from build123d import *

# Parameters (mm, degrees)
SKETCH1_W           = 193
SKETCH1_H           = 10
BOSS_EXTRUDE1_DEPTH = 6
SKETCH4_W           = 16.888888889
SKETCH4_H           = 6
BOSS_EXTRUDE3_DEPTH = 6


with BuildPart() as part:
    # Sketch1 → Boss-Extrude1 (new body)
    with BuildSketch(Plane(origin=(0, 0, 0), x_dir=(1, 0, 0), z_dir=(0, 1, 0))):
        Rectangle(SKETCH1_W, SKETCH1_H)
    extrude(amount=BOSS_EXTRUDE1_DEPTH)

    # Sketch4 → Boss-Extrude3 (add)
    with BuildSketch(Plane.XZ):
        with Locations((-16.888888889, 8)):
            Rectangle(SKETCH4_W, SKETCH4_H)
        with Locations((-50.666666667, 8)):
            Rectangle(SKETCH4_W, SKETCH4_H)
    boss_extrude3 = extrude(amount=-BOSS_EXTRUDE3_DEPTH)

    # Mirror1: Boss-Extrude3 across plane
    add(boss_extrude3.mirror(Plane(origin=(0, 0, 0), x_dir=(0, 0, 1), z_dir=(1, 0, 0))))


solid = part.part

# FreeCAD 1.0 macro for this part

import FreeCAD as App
import Part
import Sketcher

V = App.Vector

doc = App.newDocument("Part")
body = doc.addObject("PartDesign::Body", "Body")

# Sketch on XZ plane
sketch1 = doc.addObject("Sketcher::SketchObject", "Sketch")
body.addObject(sketch1)
sketch1.AttachmentSupport = (doc.XZ_Plane, [""])
sketch1.MapMode = "FlatFace"
sketch1.addGeometry([
    Part.LineSegment(V(-96.5, -5, 0), V(-96.5, 5, 0)),
    Part.LineSegment(V(-96.5, 5, 0), V(96.5, 5, 0)),
    Part.LineSegment(V(96.5, 5, 0), V(96.5, -5, 0)),
    Part.LineSegment(V(96.5, -5, 0), V(-96.5, -5, 0)),
], False)
sketch1.addConstraint([
    Sketcher.Constraint("Coincident", 0, 2, 1, 1),
    Sketcher.Constraint("Coincident", 1, 2, 2, 1),
    Sketcher.Constraint("Coincident", 2, 2, 3, 1),
    Sketcher.Constraint("Coincident", 3, 2, 0, 1),
    Sketcher.Constraint("Vertical", 0),
    Sketcher.Constraint("Horizontal", 1),
    Sketcher.Constraint("Vertical", 2),
    Sketcher.Constraint("Horizontal", 3),
    Sketcher.Constraint("Symmetric", 0, 2, 2, 2, -1, 1),
    Sketcher.Constraint("DistanceX", 1, 1, 1, 2, 193.0),
    Sketcher.Constraint("DistanceY", 0, 1, 0, 2, 10.0),
])
pad1 = doc.addObject("PartDesign::Pad", "Pad")
body.addObject(pad1)
pad1.Profile = sketch1
pad1.Length = 6
pad1.Reversed = True

# Sketch on XZ plane
sketch2 = doc.addObject("Sketcher::SketchObject", "Sketch001")
body.addObject(sketch2)
sketch2.AttachmentSupport = (doc.XZ_Plane, [""])
sketch2.MapMode = "FlatFace"
sketch2.addGeometry([
    Part.LineSegment(V(-25.333333, 11, 0), V(-25.333333, 5, 0)),  # 0
    Part.LineSegment(V(-25.333333, 5, 0), V(-8.444444, 5, 0)),  # 1
    Part.LineSegment(V(-8.444444, 5, 0), V(-8.444444, 11, 0)),  # 2
    Part.LineSegment(V(-8.444444, 11, 0), V(-25.333333, 11, 0)),  # 3
    Part.LineSegment(V(-59.111111, 11, 0), V(-59.111111, 5, 0)),  # 4
    Part.LineSegment(V(-59.111111, 5, 0), V(-42.222222, 5, 0)),  # 5
    Part.LineSegment(V(-42.222222, 5, 0), V(-42.222222, 11, 0)),  # 6
    Part.LineSegment(V(-42.222222, 11, 0), V(-59.111111, 11, 0)),  # 7
], False)
sketch2.addConstraint([
    Sketcher.Constraint("Coincident", 0, 2, 1, 1),
    Sketcher.Constraint("Coincident", 1, 2, 2, 1),
    Sketcher.Constraint("Coincident", 2, 2, 3, 1),
    Sketcher.Constraint("Coincident", 3, 2, 0, 1),
    Sketcher.Constraint("Coincident", 4, 2, 5, 1),
    Sketcher.Constraint("Coincident", 5, 2, 6, 1),
    Sketcher.Constraint("Coincident", 6, 2, 7, 1),
    Sketcher.Constraint("Coincident", 7, 2, 4, 1),
    Sketcher.Constraint("Vertical", 0),
    Sketcher.Constraint("Horizontal", 1),
    Sketcher.Constraint("Vertical", 2),
    Sketcher.Constraint("Horizontal", 3),
    Sketcher.Constraint("Vertical", 4),
    Sketcher.Constraint("Horizontal", 5),
    Sketcher.Constraint("Vertical", 6),
    Sketcher.Constraint("Horizontal", 7),
    Sketcher.Constraint("Horizontal", 1, 2, 4, 2),
    Sketcher.Constraint("Horizontal", 3, 2, 6, 2),
    Sketcher.Constraint("Equal", 3, 5),
    Sketcher.Constraint("DistanceY", 0, 2, 0, 1, 6.0),
    Sketcher.Constraint("DistanceY", -1, 1, 0, 2, 5.0),
    Sketcher.Constraint("DistanceX", 1, 1, 1, 2, 16.888889),
    Sketcher.Constraint("DistanceX", 4, 2, -1, 1, 59.111111),
    Sketcher.Constraint("DistanceX", 5, 2, 0, 2, 16.888889),
])
pad2 = doc.addObject("PartDesign::Pad", "Pad001")
body.addObject(pad2)
pad2.Profile = sketch2
pad2.Length = 6
pad2.Reversed = True
doc.recompute()

mirrored = doc.addObject("PartDesign::Mirrored", "Mirrored")
body.addObject(mirrored)
mirrored.Originals = [pad2]
mirrored.MirrorPlane = (doc.YZ_Plane, [""])
body.Tip = mirrored

doc.recompute()
